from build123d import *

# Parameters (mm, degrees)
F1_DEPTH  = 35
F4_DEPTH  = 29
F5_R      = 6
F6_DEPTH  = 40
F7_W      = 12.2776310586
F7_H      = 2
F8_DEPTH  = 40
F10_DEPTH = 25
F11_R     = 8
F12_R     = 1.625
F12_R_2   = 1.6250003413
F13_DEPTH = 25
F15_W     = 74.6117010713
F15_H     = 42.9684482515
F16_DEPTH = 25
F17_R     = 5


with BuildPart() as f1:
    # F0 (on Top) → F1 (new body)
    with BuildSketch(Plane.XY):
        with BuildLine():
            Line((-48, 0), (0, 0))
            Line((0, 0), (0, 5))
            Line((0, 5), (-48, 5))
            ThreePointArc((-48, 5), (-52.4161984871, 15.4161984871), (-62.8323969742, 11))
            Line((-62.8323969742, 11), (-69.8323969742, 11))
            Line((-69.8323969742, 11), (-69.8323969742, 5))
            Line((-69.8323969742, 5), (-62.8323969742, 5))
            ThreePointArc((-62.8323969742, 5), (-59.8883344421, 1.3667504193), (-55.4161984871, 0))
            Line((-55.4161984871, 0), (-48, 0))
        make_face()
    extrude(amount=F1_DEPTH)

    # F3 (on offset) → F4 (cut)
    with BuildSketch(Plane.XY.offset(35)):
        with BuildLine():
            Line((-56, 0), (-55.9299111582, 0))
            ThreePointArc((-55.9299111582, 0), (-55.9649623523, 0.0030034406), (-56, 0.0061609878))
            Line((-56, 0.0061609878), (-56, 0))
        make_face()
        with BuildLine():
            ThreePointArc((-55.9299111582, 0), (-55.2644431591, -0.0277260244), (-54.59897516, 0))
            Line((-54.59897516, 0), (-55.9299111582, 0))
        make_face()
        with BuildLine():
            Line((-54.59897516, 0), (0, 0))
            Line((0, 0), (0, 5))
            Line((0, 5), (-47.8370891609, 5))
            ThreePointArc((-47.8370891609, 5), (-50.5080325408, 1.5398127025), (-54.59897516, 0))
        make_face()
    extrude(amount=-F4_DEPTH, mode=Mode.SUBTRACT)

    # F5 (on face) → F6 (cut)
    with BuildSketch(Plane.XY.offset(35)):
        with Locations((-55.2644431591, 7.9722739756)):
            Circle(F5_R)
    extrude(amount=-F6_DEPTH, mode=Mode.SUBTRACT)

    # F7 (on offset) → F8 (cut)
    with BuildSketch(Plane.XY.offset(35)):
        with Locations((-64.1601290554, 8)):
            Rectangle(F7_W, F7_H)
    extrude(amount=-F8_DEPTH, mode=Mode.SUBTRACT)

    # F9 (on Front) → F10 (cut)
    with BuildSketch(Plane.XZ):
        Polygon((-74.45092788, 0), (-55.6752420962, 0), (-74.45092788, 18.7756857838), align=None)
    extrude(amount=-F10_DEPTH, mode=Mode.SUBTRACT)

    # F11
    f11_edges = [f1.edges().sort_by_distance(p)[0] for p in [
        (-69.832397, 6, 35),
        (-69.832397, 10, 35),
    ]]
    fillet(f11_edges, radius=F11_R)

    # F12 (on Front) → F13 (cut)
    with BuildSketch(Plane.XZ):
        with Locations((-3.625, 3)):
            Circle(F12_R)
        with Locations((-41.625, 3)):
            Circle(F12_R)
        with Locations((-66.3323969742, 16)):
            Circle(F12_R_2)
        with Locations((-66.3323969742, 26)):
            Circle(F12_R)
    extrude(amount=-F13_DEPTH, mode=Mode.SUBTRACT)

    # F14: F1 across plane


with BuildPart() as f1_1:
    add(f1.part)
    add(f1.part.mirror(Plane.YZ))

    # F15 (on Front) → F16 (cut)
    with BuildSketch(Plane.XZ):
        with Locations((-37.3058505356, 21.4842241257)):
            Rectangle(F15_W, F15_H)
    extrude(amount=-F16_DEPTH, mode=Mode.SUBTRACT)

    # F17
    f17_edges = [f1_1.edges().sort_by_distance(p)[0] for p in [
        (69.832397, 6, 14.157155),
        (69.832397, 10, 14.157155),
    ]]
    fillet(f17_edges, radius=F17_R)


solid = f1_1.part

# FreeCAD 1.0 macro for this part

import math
import FreeCAD as App
import Part
import Sketcher


def edges_at(feature, points):
    """Names of the edges that pass closest to the given points."""
    edges = feature.Shape.Edges
    near = lambda p: min(range(len(edges)), key=lambda i: edges[i].distToShape(Part.Vertex(*p))[0])
    return sorted({f"Edge{near(p) + 1}" for p in points})

doc = App.newDocument("Part")
params = doc.addObject("Spreadsheet::Sheet", "Params")
for row, (alias, value) in enumerate([
    ("sketch1_radius", "8 mm"),
    ("sketch1_width", "48 mm"),
    ("sketch1_width2", "7 mm"),
    ("sketch1_height", "5 mm"),
    ("pad1_length", "35 mm"),
    ("sketch2_radius", "8.000001 mm"),
    ("sketch2_height", "5 mm"),
    ("pocket1_length", "29 mm"),
    ("sketch3_diameter", "12 mm"),
    ("pocket2_length", "40 mm"),
    ("sketch4_height", "2 mm"),
    ("pocket3_length", "40 mm"),
    ("pocket4_length", "25 mm"),
    ("fillet_radius", "8 mm"),
    ("sketch6_diameter", "3.25 mm"),
    ("pocket5_length", "25 mm"),
    ("pocket6_length", "25 mm"),
    ("fillet2_radius", "5 mm"),
], start=1):
    params.set(f"A{row}", alias)
    params.set(f"B{row}", "=" + value)
    params.setAlias(f"B{row}", alias)

body = doc.addObject("PartDesign::Body", "Body")

# Sketch on XY plane
sketch1 = body.newObject("Sketcher::SketchObject", "Sketch")
sketch1.AttachmentSupport = (doc.getObject("XY_Plane"), [""])
sketch1.MapMode = "FlatFace"
sketch1.addGeometry([
    Part.LineSegment(App.Vector(0, 0, 0), App.Vector(0, 5, 0)),  # 0
    Part.LineSegment(App.Vector(0, 5, 0), App.Vector(-48, 5, 0)),  # 1
    Part.ArcOfCircle(Part.Circle(App.Vector(-55.416198, 8, 0), App.Vector(0, 0, 1), 8), math.radians(-22.024313), math.radians(157.975687)),  # 2
    Part.LineSegment(App.Vector(-62.832397, 11, 0), App.Vector(-69.832397, 11, 0)),  # 3
    Part.LineSegment(App.Vector(-69.832397, 11, 0), App.Vector(-69.832397, 5, 0)),  # 4
    Part.LineSegment(App.Vector(-69.832397, 5, 0), App.Vector(-62.832397, 5, 0)),  # 5
    Part.ArcOfCircle(Part.Circle(App.Vector(-55.416198, 8, 0), App.Vector(0, 0, 1), 8), math.radians(-157.975687), math.radians(-90)),  # 6
    Part.LineSegment(App.Vector(-55.416198, 0, 0), App.Vector(0, 0, 0)),  # 7
], False)
sketch1.addConstraint([
    Sketcher.Constraint("Coincident", 0, 2, 1, 1),
    Sketcher.Constraint("Coincident", 1, 2, 2, 1),
    Sketcher.Constraint("Coincident", 2, 2, 3, 1),
    Sketcher.Constraint("Coincident", 3, 2, 4, 1),
    Sketcher.Constraint("Coincident", 4, 2, 5, 1),
    Sketcher.Constraint("Coincident", 5, 2, 6, 1),
    Sketcher.Constraint("Tangent", 6, 2, 7, 1),
    Sketcher.Constraint("Coincident", 7, 2, 0, 1),
    Sketcher.Constraint("Vertical", 0),
    Sketcher.Constraint("Horizontal", 1),
    Sketcher.Constraint("Horizontal", 3),
    Sketcher.Constraint("Vertical", 4),
    Sketcher.Constraint("Horizontal", 5),
    Sketcher.Constraint("Horizontal", 7),
    Sketcher.Constraint("Coincident", 7, 2, -1, 1),
    Sketcher.Constraint("Coincident", 6, 3, 2, 3),
    Sketcher.Constraint("Equal", 2, 6),
    Sketcher.Constraint("Horizontal", 1, 2, 4, 2),
    Sketcher.Constraint("Vertical", 2, 2, 5, 2),
    Sketcher.Constraint("Radius", 2, 8.0),
    Sketcher.Constraint("DistanceX", 1, 2, 1, 1, 48.0),
    Sketcher.Constraint("DistanceX", 3, 2, 3, 1, 7.0),
    Sketcher.Constraint("DistanceY", 0, 1, 0, 2, 5.0),
])
sketch1.setExpression("Constraints[19]", "Params.sketch1_radius")
sketch1.setExpression("Constraints[20]", "Params.sketch1_width")
sketch1.setExpression("Constraints[21]", "Params.sketch1_width2")
sketch1.setExpression("Constraints[22]", "Params.sketch1_height")
pad1 = body.newObject("PartDesign::Pad", "Pad")
pad1.Profile = sketch1
pad1.setExpression("Length", "Params.pad1_length")

# Sketch on XY plane
sketch2 = body.newObject("Sketcher::SketchObject", "Sketch001")
sketch2.AttachmentSupport = (doc.getObject("XY_Plane"), [""])
sketch2.MapMode = "FlatFace"
sketch2.AttachmentOffset = App.Placement(App.Vector(0, 0, 35), App.Rotation())
sketch2.addGeometry([
    Part.LineSegment(App.Vector(-56, 0, 0), App.Vector(-55.929911, 0, 0)),  # 0
    Part.ArcOfCircle(Part.Circle(App.Vector(-55.264443, 7.972275, 0), App.Vector(0, 0, 1), 8.000001), math.radians(-95.275489), math.radians(-94.771577)),  # 1
    Part.LineSegment(App.Vector(-56, 0.006161, 0), App.Vector(-56, 0, 0)),  # 2
    Part.ArcOfCircle(Part.Circle(App.Vector(-55.264443, 7.972274, 0), App.Vector(0, 0, 1), 8), math.radians(-94.771577), math.radians(-85.228423)),  # 3
    Part.LineSegment(App.Vector(-54.598975, 0, 0), App.Vector(-55.929911, 0, 0)),  # 4
    Part.LineSegment(App.Vector(-54.598975, 0, 0), App.Vector(0, 0, 0)),  # 5
    Part.LineSegment(App.Vector(0, 0, 0), App.Vector(0, 5, 0)),  # 6
    Part.LineSegment(App.Vector(0, 5, 0), App.Vector(-47.837089, 5, 0)),  # 7
    Part.ArcOfCircle(Part.Circle(App.Vector(-55.264443, 7.972274, 0), App.Vector(0, 0, 1), 8), math.radians(-85.228423), math.radians(-21.810269)),  # 8
], False)
sketch2.addConstraint([
    Sketcher.Constraint("Coincident", 0, 2, 1, 2),
    Sketcher.Constraint("Coincident", 1, 1, 2, 1),
    Sketcher.Constraint("Coincident", 2, 2, 0, 1),
    Sketcher.Constraint("Coincident", 3, 1, 4, 2),
    Sketcher.Constraint("Coincident", 4, 1, 3, 2),
    Sketcher.Constraint("Coincident", 5, 2, 6, 1),
    Sketcher.Constraint("Coincident", 6, 2, 7, 1),
    Sketcher.Constraint("Coincident", 7, 2, 8, 2),
    Sketcher.Constraint("Coincident", 8, 1, 5, 1),
    Sketcher.Constraint("Horizontal", 0),
    Sketcher.Constraint("Vertical", 2),
    Sketcher.Constraint("Horizontal", 4),
    Sketcher.Constraint("Horizontal", 5),
    Sketcher.Constraint("Vertical", 6),
    Sketcher.Constraint("Horizontal", 7),
    Sketcher.Constraint("Coincident", 5, 2, -1, 1),
    Sketcher.Constraint("Coincident", 3, 3, 1, 3),
    Sketcher.Constraint("Coincident", 8, 3, 1, 3),
    Sketcher.Constraint("Coincident", 3, 1, 0, 2),
    Sketcher.Constraint("Coincident", 8, 1, 4, 1),
    Sketcher.Constraint("Radius", 1, 8.000001),
    Sketcher.Constraint("DistanceY", 6, 1, 6, 2, 5.0),
    Sketcher.Constraint("DistanceX", 1, 1, -1, 1, 56.0),
    Sketcher.Constraint("DistanceX", 0, 1, 0, 2, 0.070089),
    Sketcher.Constraint("DistanceX", 7, 2, 7, 1, 47.837089),
])
sketch2.setExpression("Constraints[20]", "Params.sketch2_radius")
sketch2.setExpression("Constraints[21]", "Params.sketch2_height")
pocket1 = body.newObject("PartDesign::Pocket", "Pocket")
pocket1.Profile = sketch2
pocket1.setExpression("Length", "Params.pocket1_length")

# Sketch on XY plane
sketch3 = body.newObject("Sketcher::SketchObject", "Sketch002")
sketch3.AttachmentSupport = (doc.getObject("XY_Plane"), [""])
sketch3.MapMode = "FlatFace"
sketch3.AttachmentOffset = App.Placement(App.Vector(0, 0, 35), App.Rotation())
sketch3.addGeometry(Part.Circle(App.Vector(-55.264443, 7.972274, 0), App.Vector(0, 0, 1), 6), False)
sketch3.addConstraint([
    Sketcher.Constraint("Diameter", 0, 12.0),
    Sketcher.Constraint("DistanceX", 0, 3, -1, 1, 55.264443),
    Sketcher.Constraint("DistanceY", -1, 1, 0, 3, 7.972274),
])
sketch3.setExpression("Constraints[0]", "Params.sketch3_diameter")
pocket2 = body.newObject("PartDesign::Pocket", "Pocket001")
pocket2.Profile = sketch3
pocket2.setExpression("Length", "Params.pocket2_length")

# Sketch on XY plane
sketch4 = body.newObject("Sketcher::SketchObject", "Sketch003")
sketch4.AttachmentSupport = (doc.getObject("XY_Plane"), [""])
sketch4.MapMode = "FlatFace"
sketch4.AttachmentOffset = App.Placement(App.Vector(0, 0, 35), App.Rotation())
sketch4.addGeometry([
    Part.LineSegment(App.Vector(-70.298945, 9, 0), App.Vector(-70.298945, 7, 0)),
    Part.LineSegment(App.Vector(-70.298945, 7, 0), App.Vector(-58.021314, 7, 0)),
    Part.LineSegment(App.Vector(-58.021314, 7, 0), App.Vector(-58.021314, 9, 0)),
    Part.LineSegment(App.Vector(-58.021314, 9, 0), App.Vector(-70.298945, 9, 0)),
], False)
sketch4.addConstraint([
    Sketcher.Constraint("Coincident", 0, 2, 1, 1),
    Sketcher.Constraint("Coincident", 1, 2, 2, 1),
    Sketcher.Constraint("Coincident", 2, 2, 3, 1),
    Sketcher.Constraint("Coincident", 3, 2, 0, 1),
    Sketcher.Constraint("Vertical", 0),
    Sketcher.Constraint("Horizontal", 1),
    Sketcher.Constraint("Vertical", 2),
    Sketcher.Constraint("Horizontal", 3),
    Sketcher.Constraint("DistanceY", 0, 2, 0, 1, 2.0),
    Sketcher.Constraint("DistanceY", -1, 1, 0, 2, 7.0),
    Sketcher.Constraint("DistanceX", 1, 1, 1, 2, 12.277631),
    Sketcher.Constraint("DistanceX", 0, 2, -1, 1, 70.298945),
])
sketch4.setExpression("Constraints[8]", "Params.sketch4_height")
pocket3 = body.newObject("PartDesign::Pocket", "Pocket002")
pocket3.Profile = sketch4
pocket3.setExpression("Length", "Params.pocket3_length")

# Sketch on XZ plane
sketch5 = body.newObject("Sketcher::SketchObject", "Sketch004")
sketch5.AttachmentSupport = (doc.getObject("XZ_Plane"), [""])
sketch5.MapMode = "FlatFace"
sketch5.addGeometry([
    Part.LineSegment(App.Vector(-74.450928, 0, 0), App.Vector(-55.675242, 0, 0)),
    Part.LineSegment(App.Vector(-55.675242, 0, 0), App.Vector(-74.450928, 18.775686, 0)),
    Part.LineSegment(App.Vector(-74.450928, 18.775686, 0), App.Vector(-74.450928, 0, 0)),
], False)
sketch5.addConstraint([
    Sketcher.Constraint("Coincident", 0, 2, 1, 1),
    Sketcher.Constraint("Coincident", 1, 2, 2, 1),
    Sketcher.Constraint("Coincident", 2, 2, 0, 1),
    Sketcher.Constraint("Horizontal", 0),
    Sketcher.Constraint("Vertical", 2),
    Sketcher.Constraint("PointOnObject", 0, 2, -1),
    Sketcher.Constraint("Equal", 0, 2),
    Sketcher.Constraint("Distance", 1, 26.552829),
    Sketcher.Constraint("DistanceX", 0, 2, -1, 1, 55.675242),
])
pocket4 = body.newObject("PartDesign::Pocket", "Pocket003")
pocket4.Profile = sketch5
pocket4.setExpression("Length", "Params.pocket4_length")
doc.recompute()

fillet = body.newObject("PartDesign::Fillet", "Fillet")
fillet.Base = (pocket4, edges_at(pocket4, [(-69.832, 6, 35), (-69.832, 10, 35)]))
fillet.setExpression("Radius", "Params.fillet_radius")

# Sketch on XZ plane
sketch6 = body.newObject("Sketcher::SketchObject", "Sketch005")
sketch6.AttachmentSupport = (doc.getObject("XZ_Plane"), [""])
sketch6.MapMode = "FlatFace"
sketch6.addGeometry([
    Part.Circle(App.Vector(-3.625, 3, 0), App.Vector(0, 0, 1), 1.625),
    Part.Circle(App.Vector(-41.625, 3, 0), App.Vector(0, 0, 1), 1.625),
    Part.Circle(App.Vector(-66.332397, 16, 0), App.Vector(0, 0, 1), 1.625),
    Part.Circle(App.Vector(-66.332397, 26, 0), App.Vector(0, 0, 1), 1.625),
], False)
sketch6.addConstraint([
    Sketcher.Constraint("Equal", 0, 1),
    Sketcher.Constraint("Equal", 1, 2),
    Sketcher.Constraint("Equal", 2, 3),
    Sketcher.Constraint("Horizontal", 0, 3, 1, 3),
    Sketcher.Constraint("Vertical", 2, 3, 3, 3),
    Sketcher.Constraint("Diameter", 0, 3.25),
    Sketcher.Constraint("DistanceY", -1, 1, 0, 3, 3.0),
    Sketcher.Constraint("DistanceY", -1, 1, 2, 3, 16.0),
    Sketcher.Constraint("DistanceY", -1, 1, 3, 3, 26.0),
    Sketcher.Constraint("DistanceX", 1, 3, 0, 3, 38.0),
    Sketcher.Constraint("DistanceX", 0, 3, -1, 1, 3.625),
    Sketcher.Constraint("DistanceX", 2, 3, -1, 1, 66.332397),
])
sketch6.setExpression("Constraints[5]", "Params.sketch6_diameter")
pocket5 = body.newObject("PartDesign::Pocket", "Pocket004")
pocket5.Profile = sketch6
pocket5.setExpression("Length", "Params.pocket5_length")
body2 = doc.addObject("PartDesign::Body", "Body001")
doc.recompute()

body2.BaseFeature = body
doc.recompute()

mirroring = doc.addObject("Part::Mirroring", "Mirroring")
mirroring.Source = body
mirroring.Base = App.Vector(0, 0, 0)
mirroring.Normal = App.Vector(1, 0, 0)
body3 = doc.addObject("PartDesign::Body", "Body002")
body3.BaseFeature = mirroring
boolean = body2.newObject("PartDesign::Boolean", "Boolean")
boolean.Type = "Fuse"
boolean.addObjects([body3])
doc.recompute()

# Sketch on XZ plane
sketch7 = body2.newObject("Sketcher::SketchObject", "Sketch006")
sketch7.AttachmentSupport = (doc.getObject("XZ_Plane001"), [""])
sketch7.MapMode = "FlatFace"
sketch7.addGeometry([
    Part.LineSegment(App.Vector(-74.611701, 42.968448, 0), App.Vector(-74.611701, 0, 0)),
    Part.LineSegment(App.Vector(-74.611701, 0, 0), App.Vector(0, 0, 0)),
    Part.LineSegment(App.Vector(0, 0, 0), App.Vector(0, 42.968448, 0)),
    Part.LineSegment(App.Vector(0, 42.968448, 0), App.Vector(-74.611701, 42.968448, 0)),
], False)
sketch7.addConstraint([
    Sketcher.Constraint("Coincident", 0, 2, 1, 1),
    Sketcher.Constraint("Coincident", 1, 2, 2, 1),
    Sketcher.Constraint("Coincident", 2, 2, 3, 1),
    Sketcher.Constraint("Coincident", 3, 2, 0, 1),
    Sketcher.Constraint("Vertical", 0),
    Sketcher.Constraint("Horizontal", 1),
    Sketcher.Constraint("Vertical", 2),
    Sketcher.Constraint("Horizontal", 3),
    Sketcher.Constraint("Coincident", 1, 2, -1, 1),
    Sketcher.Constraint("DistanceX", 1, 1, 1, 2, 74.611701),
    Sketcher.Constraint("DistanceY", 0, 2, 0, 1, 42.968448),
])
pocket6 = body2.newObject("PartDesign::Pocket", "Pocket005")
pocket6.Profile = sketch7
pocket6.setExpression("Length", "Params.pocket6_length")
doc.recompute()

fillet2 = body2.newObject("PartDesign::Fillet", "Fillet001")
fillet2.Base = (pocket6, edges_at(pocket6, [(69.832, 6, 14.157), (69.832, 10, 14.157)]))
fillet2.setExpression("Radius", "Params.fillet2_radius")
mirroring.Visibility = False

doc.recompute()
